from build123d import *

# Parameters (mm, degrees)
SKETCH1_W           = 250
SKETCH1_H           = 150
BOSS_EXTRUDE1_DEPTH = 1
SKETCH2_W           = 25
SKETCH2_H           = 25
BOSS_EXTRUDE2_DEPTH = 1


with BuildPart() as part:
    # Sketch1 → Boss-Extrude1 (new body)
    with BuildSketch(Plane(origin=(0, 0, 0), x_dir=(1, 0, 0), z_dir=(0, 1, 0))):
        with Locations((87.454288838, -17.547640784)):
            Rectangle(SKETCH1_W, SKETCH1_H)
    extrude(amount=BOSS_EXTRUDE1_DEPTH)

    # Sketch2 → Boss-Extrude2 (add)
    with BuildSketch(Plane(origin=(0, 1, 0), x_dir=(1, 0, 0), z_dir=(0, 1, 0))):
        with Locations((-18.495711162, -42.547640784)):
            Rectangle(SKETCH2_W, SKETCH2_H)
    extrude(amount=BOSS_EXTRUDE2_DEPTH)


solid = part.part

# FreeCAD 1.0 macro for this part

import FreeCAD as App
import Part
import Sketcher
from FreeCAD import Vector
Q = App.Units.Quantity

doc = App.newDocument("Part")
params = doc.addObject("Spreadsheet::Sheet", "Params")
for row, (alias, value) in enumerate([
    ("sketch1_width", "250 mm"),
    ("sketch1_height", "150 mm"),
    ("pad1_length", "1 mm"),
    ("sketch2_width", "25 mm"),
    ("pad2_length", "1 mm"),
], start=1):
    params.set(f"A{row}", alias)
    params.set(f"B{row}", "=" + value)
    params.setAlias(f"B{row}", alias)

body = doc.addObject("PartDesign::Body", "Body")

sketch1 = body.newObject("Sketcher::SketchObject", "Sketch")
sketch1.AttachmentSupport = (doc.getObject("XZ_Plane"), [""])
sketch1.MapMode = "FlatFace"
sketch1.addGeometry(Part.LineSegment(Vector(-38, -57, 0), Vector(-38, 93, 0)), False)
sketch1.addGeometry(Part.LineSegment(Vector(-38, 93, 0), Vector(212, 93, 0)), False)
sketch1.addGeometry(Part.LineSegment(Vector(212, 93, 0), Vector(212, -57, 0)), False)
sketch1.addGeometry(Part.LineSegment(Vector(212, -57, 0), Vector(-38, -57, 0)), False)
sketch1.addConstraint(Sketcher.Constraint("Coincident", 0, 2, 1, 1))
sketch1.addConstraint(Sketcher.Constraint("Coincident", 1, 2, 2, 1))
sketch1.addConstraint(Sketcher.Constraint("Coincident", 2, 2, 3, 1))
sketch1.addConstraint(Sketcher.Constraint("Coincident", 3, 2, 0, 1))
sketch1.addConstraint(Sketcher.Constraint("Vertical", 0))
sketch1.addConstraint(Sketcher.Constraint("Horizontal", 1))
sketch1.addConstraint(Sketcher.Constraint("Vertical", 2))
sketch1.addConstraint(Sketcher.Constraint("Horizontal", 3))
sketch1.addConstraint(Sketcher.Constraint("DistanceX", 1, 1, 1, 2, Q("250 mm")))
sketch1.addConstraint(Sketcher.Constraint("DistanceY", 0, 1, 0, 2, Q("150 mm")))
sketch1.addConstraint(Sketcher.Constraint("DistanceX", 0, 2, -1, 1, Q("37.545711 mm")))
sketch1.addConstraint(Sketcher.Constraint("DistanceY", -1, 1, 0, 2, Q("92.547641 mm")))
sketch1.setExpression("Constraints[8]", "Params.sketch1_width")
sketch1.setExpression("Constraints[9]", "Params.sketch1_height")
pad1 = body.newObject("PartDesign::Pad", "Pad")
pad1.Profile = sketch1
pad1.setExpression("Length", "Params.pad1_length")
pad1.Reversed = True

sketch2 = body.newObject("Sketcher::SketchObject", "Sketch001")
sketch2.AttachmentSupport = (doc.getObject("XZ_Plane"), [""])
sketch2.MapMode = "FlatFace"
sketch2.AttachmentOffset = App.Placement(Vector(0, 0, -1), App.Rotation())
sketch2.addGeometry(Part.LineSegment(Vector(-31, 30, 0), Vector(-31, 55, 0)), False)
sketch2.addGeometry(Part.LineSegment(Vector(-31, 55, 0), Vector(-6, 55, 0)), False)
sketch2.addGeometry(Part.LineSegment(Vector(-6, 55, 0), Vector(-6, 30, 0)), False)
sketch2.addGeometry(Part.LineSegment(Vector(-6, 30, 0), Vector(-31, 30, 0)), False)
sketch2.addConstraint(Sketcher.Constraint("Coincident", 0, 2, 1, 1))
sketch2.addConstraint(Sketcher.Constraint("Coincident", 1, 2, 2, 1))
sketch2.addConstraint(Sketcher.Constraint("Coincident", 2, 2, 3, 1))
sketch2.addConstraint(Sketcher.Constraint("Coincident", 3, 2, 0, 1))
sketch2.addConstraint(Sketcher.Constraint("Vertical", 0))
sketch2.addConstraint(Sketcher.Constraint("Horizontal", 1))
sketch2.addConstraint(Sketcher.Constraint("Vertical", 2))
sketch2.addConstraint(Sketcher.Constraint("Horizontal", 3))
sketch2.addConstraint(Sketcher.Constraint("Equal", 3, 0))
sketch2.addConstraint(Sketcher.Constraint("DistanceX", 1, 1, 1, 2, Q("25 mm")))
sketch2.addConstraint(Sketcher.Constraint("DistanceX", 0, 2, -1, 1, Q("30.995711 mm")))
sketch2.addConstraint(Sketcher.Constraint("DistanceY", -1, 1, 0, 2, Q("55.047641 mm")))
sketch2.setExpression("Constraints[9]", "Params.sketch2_width")
pad2 = body.newObject("PartDesign::Pad", "Pad001")
pad2.Profile = sketch2
pad2.setExpression("Length", "Params.pad2_length")
pad2.Reversed = True

doc.recompute()
